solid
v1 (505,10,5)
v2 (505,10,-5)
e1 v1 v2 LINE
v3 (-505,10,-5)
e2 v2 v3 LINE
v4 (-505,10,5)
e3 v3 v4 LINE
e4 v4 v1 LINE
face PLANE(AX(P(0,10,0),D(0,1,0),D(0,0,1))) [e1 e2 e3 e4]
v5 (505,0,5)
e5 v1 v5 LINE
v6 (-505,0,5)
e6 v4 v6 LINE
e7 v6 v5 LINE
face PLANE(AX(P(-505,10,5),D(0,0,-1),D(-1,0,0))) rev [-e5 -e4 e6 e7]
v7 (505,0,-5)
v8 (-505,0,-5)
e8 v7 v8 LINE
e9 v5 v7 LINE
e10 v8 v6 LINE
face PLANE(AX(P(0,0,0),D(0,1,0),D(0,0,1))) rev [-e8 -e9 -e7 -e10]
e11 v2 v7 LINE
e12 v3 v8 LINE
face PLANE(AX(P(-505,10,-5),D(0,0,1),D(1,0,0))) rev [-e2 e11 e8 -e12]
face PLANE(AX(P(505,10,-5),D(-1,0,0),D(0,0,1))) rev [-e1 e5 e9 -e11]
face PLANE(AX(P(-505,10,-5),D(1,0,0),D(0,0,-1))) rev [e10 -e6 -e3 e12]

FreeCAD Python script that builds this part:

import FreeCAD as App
import Part
import Sketcher
Q = App.Units.Quantity

doc = App.newDocument("Part")
body = doc.addObject("PartDesign::Body", "Body")

sketch1 = body.newObject("Sketcher::SketchObject", "Sketch")
sketch1.AttachmentSupport = (doc.getObject("XZ_Plane"), [""])
sketch1.MapMode = "FlatFace"
sketch1.addGeometry([
    Part.LineSegment(App.Vector(-505, -5, 0), App.Vector(-505, 5, 0)),
    Part.LineSegment(App.Vector(-505, 5, 0), App.Vector(505, 5, 0)),
    Part.LineSegment(App.Vector(505, 5, 0), App.Vector(505, -5, 0)),
    Part.LineSegment(App.Vector(505, -5, 0), App.Vector(-505, -5, 0)),
], False)
sketch1.addConstraint([
    Sketcher.Constraint("Coincident", 0, 2, 1, 1),
    Sketcher.Constraint("Coincident", 1, 2, 2, 1),
    Sketcher.Constraint("Coincident", 2, 2, 3, 1),
    Sketcher.Constraint("Coincident", 3, 2, 0, 1),
    Sketcher.Constraint("Vertical", 0),
    Sketcher.Constraint("Horizontal", 1),
    Sketcher.Constraint("Vertical", 2),
    Sketcher.Constraint("Horizontal", 3),
    Sketcher.Constraint("Symmetric", 0, 2, 2, 2, -1, 1),
    Sketcher.Constraint("DistanceX", 1, 1, 1, 2, Q("1010 mm")),
    Sketcher.Constraint("DistanceY", 0, 1, 0, 2, Q("10 mm")),
])
pad1 = body.newObject("PartDesign::Pad", "Pad")
pad1.Profile = sketch1
pad1.Length = 10
pad1.Reversed = True

doc.recompute()
